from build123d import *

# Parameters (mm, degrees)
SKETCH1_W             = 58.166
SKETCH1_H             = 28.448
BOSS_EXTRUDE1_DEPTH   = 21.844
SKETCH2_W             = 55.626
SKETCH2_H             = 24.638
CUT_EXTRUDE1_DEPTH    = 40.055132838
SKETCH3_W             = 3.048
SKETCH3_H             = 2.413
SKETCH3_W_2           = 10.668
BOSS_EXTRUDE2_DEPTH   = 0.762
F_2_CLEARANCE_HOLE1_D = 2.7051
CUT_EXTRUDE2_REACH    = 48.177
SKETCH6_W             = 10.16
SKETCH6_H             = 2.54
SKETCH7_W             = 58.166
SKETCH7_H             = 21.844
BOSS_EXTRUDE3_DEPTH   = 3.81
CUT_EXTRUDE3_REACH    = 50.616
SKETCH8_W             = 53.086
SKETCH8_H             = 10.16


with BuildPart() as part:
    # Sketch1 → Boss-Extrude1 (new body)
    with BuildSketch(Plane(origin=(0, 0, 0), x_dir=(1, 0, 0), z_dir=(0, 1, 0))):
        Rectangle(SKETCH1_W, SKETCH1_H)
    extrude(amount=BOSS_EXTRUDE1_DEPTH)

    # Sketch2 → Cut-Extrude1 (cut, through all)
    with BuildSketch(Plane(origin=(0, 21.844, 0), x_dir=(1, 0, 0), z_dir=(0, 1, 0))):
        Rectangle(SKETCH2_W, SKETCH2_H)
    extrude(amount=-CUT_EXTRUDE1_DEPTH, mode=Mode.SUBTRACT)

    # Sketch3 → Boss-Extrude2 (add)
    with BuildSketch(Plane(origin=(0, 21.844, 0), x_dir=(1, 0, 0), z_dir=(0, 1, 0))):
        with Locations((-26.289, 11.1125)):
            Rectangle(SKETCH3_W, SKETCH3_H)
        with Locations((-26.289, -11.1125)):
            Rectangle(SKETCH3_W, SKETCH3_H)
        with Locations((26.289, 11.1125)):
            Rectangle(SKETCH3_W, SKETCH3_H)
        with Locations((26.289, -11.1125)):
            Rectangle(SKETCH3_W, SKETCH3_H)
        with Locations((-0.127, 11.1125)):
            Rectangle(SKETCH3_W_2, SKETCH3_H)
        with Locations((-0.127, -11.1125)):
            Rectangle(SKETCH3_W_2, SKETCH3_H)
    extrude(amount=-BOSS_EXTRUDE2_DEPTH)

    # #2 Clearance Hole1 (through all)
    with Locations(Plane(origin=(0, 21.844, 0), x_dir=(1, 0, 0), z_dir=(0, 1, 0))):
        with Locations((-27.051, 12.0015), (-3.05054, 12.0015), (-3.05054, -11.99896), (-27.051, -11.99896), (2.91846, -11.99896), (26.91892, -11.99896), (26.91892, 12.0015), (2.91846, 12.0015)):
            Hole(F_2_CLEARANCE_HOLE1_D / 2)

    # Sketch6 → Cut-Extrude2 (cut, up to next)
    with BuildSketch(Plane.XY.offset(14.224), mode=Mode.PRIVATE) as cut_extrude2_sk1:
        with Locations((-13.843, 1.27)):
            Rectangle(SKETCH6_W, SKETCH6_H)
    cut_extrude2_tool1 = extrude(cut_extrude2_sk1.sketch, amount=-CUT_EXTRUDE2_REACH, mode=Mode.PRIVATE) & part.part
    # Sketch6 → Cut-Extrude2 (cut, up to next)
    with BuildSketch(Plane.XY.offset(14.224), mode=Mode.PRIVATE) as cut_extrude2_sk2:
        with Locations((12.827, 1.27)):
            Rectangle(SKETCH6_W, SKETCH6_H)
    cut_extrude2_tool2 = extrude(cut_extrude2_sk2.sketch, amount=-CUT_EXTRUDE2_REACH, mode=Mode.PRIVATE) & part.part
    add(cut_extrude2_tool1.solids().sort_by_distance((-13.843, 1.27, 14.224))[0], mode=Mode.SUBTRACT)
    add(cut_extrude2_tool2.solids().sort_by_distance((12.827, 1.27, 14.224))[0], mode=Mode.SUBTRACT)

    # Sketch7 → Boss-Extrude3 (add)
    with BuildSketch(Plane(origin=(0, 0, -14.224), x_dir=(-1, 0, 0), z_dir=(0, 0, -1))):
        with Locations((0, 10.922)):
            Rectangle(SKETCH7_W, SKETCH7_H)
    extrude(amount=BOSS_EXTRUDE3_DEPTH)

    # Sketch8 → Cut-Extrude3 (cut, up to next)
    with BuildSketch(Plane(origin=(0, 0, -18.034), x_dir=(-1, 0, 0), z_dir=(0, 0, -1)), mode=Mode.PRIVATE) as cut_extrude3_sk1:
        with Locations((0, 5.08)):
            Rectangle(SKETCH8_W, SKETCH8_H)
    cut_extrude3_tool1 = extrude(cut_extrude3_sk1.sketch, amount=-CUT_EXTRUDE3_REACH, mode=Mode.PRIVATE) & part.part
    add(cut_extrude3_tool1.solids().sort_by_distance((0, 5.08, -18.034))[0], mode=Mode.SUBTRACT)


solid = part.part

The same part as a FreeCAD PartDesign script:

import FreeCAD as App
import Part
import Sketcher
from FreeCAD import Vector
Q = App.Units.Quantity


def add_polygon(sketch, points):
    """Adds a closed chain of lines whose ends are joined by coincident constraints."""
    first, n = sketch.GeometryCount, len(points)
    for a, b in zip(points, points[1:] + points[:1]):
        sketch.addGeometry(Part.LineSegment(App.Vector(*a, 0), App.Vector(*b, 0)), False)
    for i in range(n):
        sketch.addConstraint(Sketcher.Constraint("Coincident", first + i, 2, first + (i + 1) % n, 1))

doc = App.newDocument("Part")
body = doc.addObject("PartDesign::Body", "Body")

sketch1 = body.newObject("Sketcher::SketchObject", "Sketch")
sketch1.AttachmentSupport = (doc.getObject("XZ_Plane"), [""])
sketch1.MapMode = "FlatFace"
add_polygon(sketch1, [(-29, -14), (-29, 14), (29, 14), (29, -14)])
sketch1.addConstraint([
    Sketcher.Constraint("Vertical", 0),
    Sketcher.Constraint("Horizontal", 1),
    Sketcher.Constraint("Vertical", 2),
    Sketcher.Constraint("Horizontal", 3),
    Sketcher.Constraint("Symmetric", 0, 2, 2, 2, -1, 1),
    Sketcher.Constraint("DistanceX", 1, 1, 1, 2, Q("2.29 in")),
    Sketcher.Constraint("DistanceY", 0, 1, 0, 2, Q("1.12 in")),
])
pad1 = body.newObject("PartDesign::Pad", "Pad")
pad1.Profile = sketch1
pad1.Length = Q("0.86 in")
pad1.Reversed = True

sketch2 = body.newObject("Sketcher::SketchObject", "Sketch001")
sketch2.AttachmentSupport = (doc.getObject("XZ_Plane"), [""])
sketch2.MapMode = "FlatFace"
sketch2.AttachmentOffset = App.Placement(Vector(0, 0, -0.86 * 25.4), App.Rotation())
add_polygon(sketch2, [(-28, -12), (-28, 12), (28, 12), (28, -12)])
sketch2.addConstraint([
    Sketcher.Constraint("Vertical", 0),
    Sketcher.Constraint("Horizontal", 1),
    Sketcher.Constraint("Vertical", 2),
    Sketcher.Constraint("Horizontal", 3),
    Sketcher.Constraint("Symmetric", 0, 2, 2, 2, -1, 1),
    Sketcher.Constraint("DistanceX", 1, 1, 1, 2, Q("2.19 in")),
    Sketcher.Constraint("DistanceY", 0, 1, 0, 2, Q("0.97 in")),
])
pocket1 = body.newObject("PartDesign::Pocket", "Pocket")
pocket1.Profile = sketch2
pocket1.Type = "ThroughAll"
pocket1.Reversed = True

sketch3 = body.newObject("Sketcher::SketchObject", "Sketch002")
sketch3.AttachmentSupport = (doc.getObject("XZ_Plane"), [""])
sketch3.MapMode = "FlatFace"
sketch3.AttachmentOffset = App.Placement(Vector(0, 0, -0.86 * 25.4), App.Rotation())
add_polygon(sketch3, [(-27.8, -12.3), (-27.8, -9.9), (-24.8, -9.9), (-24.8, -12.3)])
add_polygon(sketch3, [(-27.8, 9.9), (-27.8, 12.3), (-24.8, 12.3), (-24.8, 9.9)])
add_polygon(sketch3, [(24.8, -12.3), (24.8, -9.9), (27.8, -9.9), (27.8, -12.3)])
add_polygon(sketch3, [(24.8, 9.9), (24.8, 12.3), (27.8, 12.3), (27.8, 9.9)])
add_polygon(sketch3, [(-5.5, -12.3), (-5.5, -9.9), (5.2, -9.9), (5.2, -12.3)])
add_polygon(sketch3, [(-5.5, 9.9), (-5.5, 12.3), (5.2, 12.3), (5.2, 9.9)])
sketch3.addConstraint([
    Sketcher.Constraint("Vertical", 0),
    Sketcher.Constraint("Horizontal", 1),
    Sketcher.Constraint("Vertical", 2),
    Sketcher.Constraint("Horizontal", 3),
    Sketcher.Constraint("Vertical", 4),
    Sketcher.Constraint("Horizontal", 5),
    Sketcher.Constraint("Vertical", 6),
    Sketcher.Constraint("Horizontal", 7),
    Sketcher.Constraint("Vertical", 8),
    Sketcher.Constraint("Horizontal", 9),
    Sketcher.Constraint("Vertical", 10),
    Sketcher.Constraint("Horizontal", 11),
    Sketcher.Constraint("Vertical", 12),
    Sketcher.Constraint("Horizontal", 13),
    Sketcher.Constraint("Vertical", 14),
    Sketcher.Constraint("Horizontal", 15),
    Sketcher.Constraint("Vertical", 16),
    Sketcher.Constraint("Horizontal", 17),
    Sketcher.Constraint("Vertical", 18),
    Sketcher.Constraint("Horizontal", 19),
    Sketcher.Constraint("Vertical", 20),
    Sketcher.Constraint("Horizontal", 21),
    Sketcher.Constraint("Vertical", 22),
    Sketcher.Constraint("Horizontal", 23),
    Sketcher.Constraint("Symmetric", 6, 2, 8, 2, -1, 1),
    Sketcher.Constraint("Symmetric", 4, 2, 10, 2, -1, 1),
    Sketcher.Constraint("Symmetric", 2, 2, 12, 2, -1, 1),
    Sketcher.Constraint("Symmetric", 0, 2, 14, 2, -1, 1),
    Sketcher.Constraint("Symmetric", 1, 2, 8, 2, -2),
    Sketcher.Constraint("Symmetric", 3, 2, 10, 2, -2),
    Sketcher.Constraint("Symmetric", 19, 2, 20, 2, -1),
    Sketcher.Constraint("Symmetric", 17, 2, 22, 2, -1),
    Sketcher.Constraint("Horizontal", 9, 2, 16, 2),
    Sketcher.Constraint("Horizontal", 11, 2, 18, 2),
    Sketcher.Constraint("DistanceX", 1, 1, 1, 2, Q("0.12 in")),
    Sketcher.Constraint("DistanceX", 17, 1, 17, 2, Q("0.42 in")),
    Sketcher.Constraint("DistanceY", 0, 1, 0, 2, Q("0.095 in")),
    Sketcher.Constraint("DistanceY", 0, 2, -1, 1, Q("0.39 in")),
    Sketcher.Constraint("DistanceX", 1, 2, 8, 2, Q("1.95 in")),
    Sketcher.Constraint("DistanceX", 1, 2, 16, 2, Q("0.76 in")),
])
pad2 = body.newObject("PartDesign::Pad", "Pad001")
pad2.Profile = sketch3
pad2.Length = Q("0.03 in")

sketch4 = body.newObject("Sketcher::SketchObject", "Sketch003")
sketch4.AttachmentSupport = (doc.getObject("XZ_Plane"), [""])
sketch4.MapMode = "FlatFace"
sketch4.AttachmentOffset = App.Placement(Vector(0, 0, -0.86 * 25.4), App.Rotation())
sketch4.addGeometry([
    Part.Circle(Vector(-27.1, -12, 0), Vector(0, 0, 1), 1.4),
    Part.Circle(Vector(-3.1, -12, 0), Vector(0, 0, 1), 1.4),
    Part.Circle(Vector(-3.1, 12, 0), Vector(0, 0, 1), 1.4),
    Part.Circle(Vector(-27.1, 12, 0), Vector(0, 0, 1), 1.4),
    Part.Circle(Vector(2.9, 12, 0), Vector(0, 0, 1), 1.4),
    Part.Circle(Vector(26.9, 12, 0), Vector(0, 0, 1), 1.4),
    Part.Circle(Vector(26.9, -12, 0), Vector(0, 0, 1), 1.4),
    Part.Circle(Vector(2.9, -12, 0), Vector(0, 0, 1), 1.4),
], False)
sketch4.addConstraint([
    Sketcher.Constraint("Equal", 0, 1),
    Sketcher.Constraint("Equal", 1, 2),
    Sketcher.Constraint("Equal", 2, 3),
    Sketcher.Constraint("Equal", 3, 4),
    Sketcher.Constraint("Equal", 4, 5),
    Sketcher.Constraint("Equal", 5, 6),
    Sketcher.Constraint("Equal", 6, 7),
    Sketcher.Constraint("Horizontal", 0, 3, 1, 3),
    Sketcher.Constraint("Horizontal", 2, 3, 3, 3),
    Sketcher.Constraint("Horizontal", 3, 3, 4, 3),
    Sketcher.Constraint("Horizontal", 4, 3, 5, 3),
    Sketcher.Constraint("Horizontal", 1, 3, 6, 3),
    Sketcher.Constraint("Horizontal", 6, 3, 7, 3),
    Sketcher.Constraint("Vertical", 1, 3, 2, 3),
    Sketcher.Constraint("Vertical", 0, 3, 3, 3),
    Sketcher.Constraint("Vertical", 5, 3, 6, 3),
    Sketcher.Constraint("Vertical", 4, 3, 7, 3),
    Sketcher.Constraint("Diameter", 0, Q("0.1065 in")),
    Sketcher.Constraint("DistanceX", 0, 3, -1, 1, Q("1.065 in")),
    Sketcher.Constraint("DistanceX", 2, 3, 4, 3, Q("0.235 in")),
    Sketcher.Constraint("DistanceY", 0, 3, -1, 1, Q("0.4725 in")),
    Sketcher.Constraint("DistanceX", 1, 3, -1, 1, Q("0.1201 in")),
    Sketcher.Constraint("DistanceY", -1, 1, 2, 3, Q("0.4724 in")),
    Sketcher.Constraint("DistanceX", -1, 1, 5, 3, Q("1.0598 in")),
])
doc.recompute()
hole = body.newObject("PartDesign::Hole", "Hole")
hole.Profile = sketch4
hole.ThreadType = "None"
hole.Diameter = Q("0.1065 in")
hole.DepthType = "ThroughAll"
hole.Reversed = True

sketch5 = body.newObject("Sketcher::SketchObject", "Sketch004")
sketch5.AttachmentSupport = (doc.getObject("XY_Plane"), [""])
sketch5.MapMode = "FlatFace"
sketch5.AttachmentOffset = App.Placement(Vector(0, 0, 0.56 * 25.4), App.Rotation())
add_polygon(sketch5, [(-18.9, 2.5), (-18.9, 0), (-8.8, 0), (-8.8, 2.5)])
sketch5.addConstraint([
    Sketcher.Constraint("Vertical", 0),
    Sketcher.Constraint("Horizontal", 1),
    Sketcher.Constraint("Vertical", 2),
    Sketcher.Constraint("Horizontal", 3),
    Sketcher.Constraint("PointOnObject", 0, 2, -1),
    Sketcher.Constraint("DistanceX", 1, 1, 1, 2, Q("0.4 in")),
    Sketcher.Constraint("DistanceY", 0, 2, 0, 1, Q("0.1 in")),
    Sketcher.Constraint("DistanceX", 0, 2, -1, 1, Q("0.745 in")),
])
pocket2 = body.newObject("PartDesign::Pocket", "Pocket001")
pocket2.Profile = sketch5
pocket2.Type = "UpToFirst"

sketch6 = body.newObject("Sketcher::SketchObject", "Sketch005")
sketch6.AttachmentSupport = (doc.getObject("XY_Plane"), [""])
sketch6.MapMode = "FlatFace"
sketch6.AttachmentOffset = App.Placement(Vector(0, 0, 0.56 * 25.4), App.Rotation())
add_polygon(sketch6, [(7.7, 2.5), (7.7, 0), (17.9, 0), (17.9, 2.5)])
sketch6.addConstraint([
    Sketcher.Constraint("Vertical", 0),
    Sketcher.Constraint("Horizontal", 1),
    Sketcher.Constraint("Vertical", 2),
    Sketcher.Constraint("Horizontal", 3),
    Sketcher.Constraint("PointOnObject", 0, 2, -1),
    Sketcher.Constraint("DistanceX", 1, 1, 1, 2, Q("0.4 in")),
    Sketcher.Constraint("DistanceY", 0, 2, 0, 1, Q("0.1 in")),
    Sketcher.Constraint("DistanceX", -1, 1, 0, 2, Q("0.305 in")),
])
pocket3 = body.newObject("PartDesign::Pocket", "Pocket002")
pocket3.Profile = sketch6
pocket3.Type = "UpToFirst"

sketch7 = body.newObject("Sketcher::SketchObject", "Sketch006")
sketch7.AttachmentSupport = (doc.getObject("XY_Plane"), [""])
sketch7.MapMode = "FlatFace"
sketch7.AttachmentOffset = App.Placement(Vector(0, 0, -0.56 * 25.4), App.Rotation())
add_polygon(sketch7, [(29, 22), (29, 0), (-29, 0), (-29, 22)])
sketch7.addConstraint([
    Sketcher.Constraint("Vertical", 0),
    Sketcher.Constraint("Horizontal", 1),
    Sketcher.Constraint("Vertical", 2),
    Sketcher.Constraint("Horizontal", 3),
    Sketcher.Constraint("Symmetric", 0, 2, 1, 2, -1, 1),
    Sketcher.Constraint("DistanceX", 1, 2, 1, 1, Q("2.29 in")),
    Sketcher.Constraint("DistanceY", 0, 2, 0, 1, Q("0.86 in")),
])
pad3 = body.newObject("PartDesign::Pad", "Pad002")
pad3.Profile = sketch7
pad3.Length = Q("0.15 in")
pad3.Reversed = True

sketch8 = body.newObject("Sketcher::SketchObject", "Sketch007")
sketch8.AttachmentSupport = (doc.getObject("XY_Plane"), [""])
sketch8.MapMode = "FlatFace"
sketch8.AttachmentOffset = App.Placement(Vector(0, 0, -0.71 * 25.4), App.Rotation())
add_polygon(sketch8, [(27, 10), (27, 0), (-27, 0), (-27, 10)])
sketch8.addConstraint([
    Sketcher.Constraint("Vertical", 0),
    Sketcher.Constraint("Horizontal", 1),
    Sketcher.Constraint("Vertical", 2),
    Sketcher.Constraint("Horizontal", 3),
    Sketcher.Constraint("Symmetric", 0, 2, 1, 2, -1, 1),
    Sketcher.Constraint("DistanceY", 0, 2, 0, 1, Q("0.4 in")),
    Sketcher.Constraint("DistanceX", 1, 2, 1, 1, Q("2.09 in")),
])
pocket4 = body.newObject("PartDesign::Pocket", "Pocket003")
pocket4.Profile = sketch8
pocket4.Type = "UpToFirst"
pocket4.Reversed = True

doc.recompute()
